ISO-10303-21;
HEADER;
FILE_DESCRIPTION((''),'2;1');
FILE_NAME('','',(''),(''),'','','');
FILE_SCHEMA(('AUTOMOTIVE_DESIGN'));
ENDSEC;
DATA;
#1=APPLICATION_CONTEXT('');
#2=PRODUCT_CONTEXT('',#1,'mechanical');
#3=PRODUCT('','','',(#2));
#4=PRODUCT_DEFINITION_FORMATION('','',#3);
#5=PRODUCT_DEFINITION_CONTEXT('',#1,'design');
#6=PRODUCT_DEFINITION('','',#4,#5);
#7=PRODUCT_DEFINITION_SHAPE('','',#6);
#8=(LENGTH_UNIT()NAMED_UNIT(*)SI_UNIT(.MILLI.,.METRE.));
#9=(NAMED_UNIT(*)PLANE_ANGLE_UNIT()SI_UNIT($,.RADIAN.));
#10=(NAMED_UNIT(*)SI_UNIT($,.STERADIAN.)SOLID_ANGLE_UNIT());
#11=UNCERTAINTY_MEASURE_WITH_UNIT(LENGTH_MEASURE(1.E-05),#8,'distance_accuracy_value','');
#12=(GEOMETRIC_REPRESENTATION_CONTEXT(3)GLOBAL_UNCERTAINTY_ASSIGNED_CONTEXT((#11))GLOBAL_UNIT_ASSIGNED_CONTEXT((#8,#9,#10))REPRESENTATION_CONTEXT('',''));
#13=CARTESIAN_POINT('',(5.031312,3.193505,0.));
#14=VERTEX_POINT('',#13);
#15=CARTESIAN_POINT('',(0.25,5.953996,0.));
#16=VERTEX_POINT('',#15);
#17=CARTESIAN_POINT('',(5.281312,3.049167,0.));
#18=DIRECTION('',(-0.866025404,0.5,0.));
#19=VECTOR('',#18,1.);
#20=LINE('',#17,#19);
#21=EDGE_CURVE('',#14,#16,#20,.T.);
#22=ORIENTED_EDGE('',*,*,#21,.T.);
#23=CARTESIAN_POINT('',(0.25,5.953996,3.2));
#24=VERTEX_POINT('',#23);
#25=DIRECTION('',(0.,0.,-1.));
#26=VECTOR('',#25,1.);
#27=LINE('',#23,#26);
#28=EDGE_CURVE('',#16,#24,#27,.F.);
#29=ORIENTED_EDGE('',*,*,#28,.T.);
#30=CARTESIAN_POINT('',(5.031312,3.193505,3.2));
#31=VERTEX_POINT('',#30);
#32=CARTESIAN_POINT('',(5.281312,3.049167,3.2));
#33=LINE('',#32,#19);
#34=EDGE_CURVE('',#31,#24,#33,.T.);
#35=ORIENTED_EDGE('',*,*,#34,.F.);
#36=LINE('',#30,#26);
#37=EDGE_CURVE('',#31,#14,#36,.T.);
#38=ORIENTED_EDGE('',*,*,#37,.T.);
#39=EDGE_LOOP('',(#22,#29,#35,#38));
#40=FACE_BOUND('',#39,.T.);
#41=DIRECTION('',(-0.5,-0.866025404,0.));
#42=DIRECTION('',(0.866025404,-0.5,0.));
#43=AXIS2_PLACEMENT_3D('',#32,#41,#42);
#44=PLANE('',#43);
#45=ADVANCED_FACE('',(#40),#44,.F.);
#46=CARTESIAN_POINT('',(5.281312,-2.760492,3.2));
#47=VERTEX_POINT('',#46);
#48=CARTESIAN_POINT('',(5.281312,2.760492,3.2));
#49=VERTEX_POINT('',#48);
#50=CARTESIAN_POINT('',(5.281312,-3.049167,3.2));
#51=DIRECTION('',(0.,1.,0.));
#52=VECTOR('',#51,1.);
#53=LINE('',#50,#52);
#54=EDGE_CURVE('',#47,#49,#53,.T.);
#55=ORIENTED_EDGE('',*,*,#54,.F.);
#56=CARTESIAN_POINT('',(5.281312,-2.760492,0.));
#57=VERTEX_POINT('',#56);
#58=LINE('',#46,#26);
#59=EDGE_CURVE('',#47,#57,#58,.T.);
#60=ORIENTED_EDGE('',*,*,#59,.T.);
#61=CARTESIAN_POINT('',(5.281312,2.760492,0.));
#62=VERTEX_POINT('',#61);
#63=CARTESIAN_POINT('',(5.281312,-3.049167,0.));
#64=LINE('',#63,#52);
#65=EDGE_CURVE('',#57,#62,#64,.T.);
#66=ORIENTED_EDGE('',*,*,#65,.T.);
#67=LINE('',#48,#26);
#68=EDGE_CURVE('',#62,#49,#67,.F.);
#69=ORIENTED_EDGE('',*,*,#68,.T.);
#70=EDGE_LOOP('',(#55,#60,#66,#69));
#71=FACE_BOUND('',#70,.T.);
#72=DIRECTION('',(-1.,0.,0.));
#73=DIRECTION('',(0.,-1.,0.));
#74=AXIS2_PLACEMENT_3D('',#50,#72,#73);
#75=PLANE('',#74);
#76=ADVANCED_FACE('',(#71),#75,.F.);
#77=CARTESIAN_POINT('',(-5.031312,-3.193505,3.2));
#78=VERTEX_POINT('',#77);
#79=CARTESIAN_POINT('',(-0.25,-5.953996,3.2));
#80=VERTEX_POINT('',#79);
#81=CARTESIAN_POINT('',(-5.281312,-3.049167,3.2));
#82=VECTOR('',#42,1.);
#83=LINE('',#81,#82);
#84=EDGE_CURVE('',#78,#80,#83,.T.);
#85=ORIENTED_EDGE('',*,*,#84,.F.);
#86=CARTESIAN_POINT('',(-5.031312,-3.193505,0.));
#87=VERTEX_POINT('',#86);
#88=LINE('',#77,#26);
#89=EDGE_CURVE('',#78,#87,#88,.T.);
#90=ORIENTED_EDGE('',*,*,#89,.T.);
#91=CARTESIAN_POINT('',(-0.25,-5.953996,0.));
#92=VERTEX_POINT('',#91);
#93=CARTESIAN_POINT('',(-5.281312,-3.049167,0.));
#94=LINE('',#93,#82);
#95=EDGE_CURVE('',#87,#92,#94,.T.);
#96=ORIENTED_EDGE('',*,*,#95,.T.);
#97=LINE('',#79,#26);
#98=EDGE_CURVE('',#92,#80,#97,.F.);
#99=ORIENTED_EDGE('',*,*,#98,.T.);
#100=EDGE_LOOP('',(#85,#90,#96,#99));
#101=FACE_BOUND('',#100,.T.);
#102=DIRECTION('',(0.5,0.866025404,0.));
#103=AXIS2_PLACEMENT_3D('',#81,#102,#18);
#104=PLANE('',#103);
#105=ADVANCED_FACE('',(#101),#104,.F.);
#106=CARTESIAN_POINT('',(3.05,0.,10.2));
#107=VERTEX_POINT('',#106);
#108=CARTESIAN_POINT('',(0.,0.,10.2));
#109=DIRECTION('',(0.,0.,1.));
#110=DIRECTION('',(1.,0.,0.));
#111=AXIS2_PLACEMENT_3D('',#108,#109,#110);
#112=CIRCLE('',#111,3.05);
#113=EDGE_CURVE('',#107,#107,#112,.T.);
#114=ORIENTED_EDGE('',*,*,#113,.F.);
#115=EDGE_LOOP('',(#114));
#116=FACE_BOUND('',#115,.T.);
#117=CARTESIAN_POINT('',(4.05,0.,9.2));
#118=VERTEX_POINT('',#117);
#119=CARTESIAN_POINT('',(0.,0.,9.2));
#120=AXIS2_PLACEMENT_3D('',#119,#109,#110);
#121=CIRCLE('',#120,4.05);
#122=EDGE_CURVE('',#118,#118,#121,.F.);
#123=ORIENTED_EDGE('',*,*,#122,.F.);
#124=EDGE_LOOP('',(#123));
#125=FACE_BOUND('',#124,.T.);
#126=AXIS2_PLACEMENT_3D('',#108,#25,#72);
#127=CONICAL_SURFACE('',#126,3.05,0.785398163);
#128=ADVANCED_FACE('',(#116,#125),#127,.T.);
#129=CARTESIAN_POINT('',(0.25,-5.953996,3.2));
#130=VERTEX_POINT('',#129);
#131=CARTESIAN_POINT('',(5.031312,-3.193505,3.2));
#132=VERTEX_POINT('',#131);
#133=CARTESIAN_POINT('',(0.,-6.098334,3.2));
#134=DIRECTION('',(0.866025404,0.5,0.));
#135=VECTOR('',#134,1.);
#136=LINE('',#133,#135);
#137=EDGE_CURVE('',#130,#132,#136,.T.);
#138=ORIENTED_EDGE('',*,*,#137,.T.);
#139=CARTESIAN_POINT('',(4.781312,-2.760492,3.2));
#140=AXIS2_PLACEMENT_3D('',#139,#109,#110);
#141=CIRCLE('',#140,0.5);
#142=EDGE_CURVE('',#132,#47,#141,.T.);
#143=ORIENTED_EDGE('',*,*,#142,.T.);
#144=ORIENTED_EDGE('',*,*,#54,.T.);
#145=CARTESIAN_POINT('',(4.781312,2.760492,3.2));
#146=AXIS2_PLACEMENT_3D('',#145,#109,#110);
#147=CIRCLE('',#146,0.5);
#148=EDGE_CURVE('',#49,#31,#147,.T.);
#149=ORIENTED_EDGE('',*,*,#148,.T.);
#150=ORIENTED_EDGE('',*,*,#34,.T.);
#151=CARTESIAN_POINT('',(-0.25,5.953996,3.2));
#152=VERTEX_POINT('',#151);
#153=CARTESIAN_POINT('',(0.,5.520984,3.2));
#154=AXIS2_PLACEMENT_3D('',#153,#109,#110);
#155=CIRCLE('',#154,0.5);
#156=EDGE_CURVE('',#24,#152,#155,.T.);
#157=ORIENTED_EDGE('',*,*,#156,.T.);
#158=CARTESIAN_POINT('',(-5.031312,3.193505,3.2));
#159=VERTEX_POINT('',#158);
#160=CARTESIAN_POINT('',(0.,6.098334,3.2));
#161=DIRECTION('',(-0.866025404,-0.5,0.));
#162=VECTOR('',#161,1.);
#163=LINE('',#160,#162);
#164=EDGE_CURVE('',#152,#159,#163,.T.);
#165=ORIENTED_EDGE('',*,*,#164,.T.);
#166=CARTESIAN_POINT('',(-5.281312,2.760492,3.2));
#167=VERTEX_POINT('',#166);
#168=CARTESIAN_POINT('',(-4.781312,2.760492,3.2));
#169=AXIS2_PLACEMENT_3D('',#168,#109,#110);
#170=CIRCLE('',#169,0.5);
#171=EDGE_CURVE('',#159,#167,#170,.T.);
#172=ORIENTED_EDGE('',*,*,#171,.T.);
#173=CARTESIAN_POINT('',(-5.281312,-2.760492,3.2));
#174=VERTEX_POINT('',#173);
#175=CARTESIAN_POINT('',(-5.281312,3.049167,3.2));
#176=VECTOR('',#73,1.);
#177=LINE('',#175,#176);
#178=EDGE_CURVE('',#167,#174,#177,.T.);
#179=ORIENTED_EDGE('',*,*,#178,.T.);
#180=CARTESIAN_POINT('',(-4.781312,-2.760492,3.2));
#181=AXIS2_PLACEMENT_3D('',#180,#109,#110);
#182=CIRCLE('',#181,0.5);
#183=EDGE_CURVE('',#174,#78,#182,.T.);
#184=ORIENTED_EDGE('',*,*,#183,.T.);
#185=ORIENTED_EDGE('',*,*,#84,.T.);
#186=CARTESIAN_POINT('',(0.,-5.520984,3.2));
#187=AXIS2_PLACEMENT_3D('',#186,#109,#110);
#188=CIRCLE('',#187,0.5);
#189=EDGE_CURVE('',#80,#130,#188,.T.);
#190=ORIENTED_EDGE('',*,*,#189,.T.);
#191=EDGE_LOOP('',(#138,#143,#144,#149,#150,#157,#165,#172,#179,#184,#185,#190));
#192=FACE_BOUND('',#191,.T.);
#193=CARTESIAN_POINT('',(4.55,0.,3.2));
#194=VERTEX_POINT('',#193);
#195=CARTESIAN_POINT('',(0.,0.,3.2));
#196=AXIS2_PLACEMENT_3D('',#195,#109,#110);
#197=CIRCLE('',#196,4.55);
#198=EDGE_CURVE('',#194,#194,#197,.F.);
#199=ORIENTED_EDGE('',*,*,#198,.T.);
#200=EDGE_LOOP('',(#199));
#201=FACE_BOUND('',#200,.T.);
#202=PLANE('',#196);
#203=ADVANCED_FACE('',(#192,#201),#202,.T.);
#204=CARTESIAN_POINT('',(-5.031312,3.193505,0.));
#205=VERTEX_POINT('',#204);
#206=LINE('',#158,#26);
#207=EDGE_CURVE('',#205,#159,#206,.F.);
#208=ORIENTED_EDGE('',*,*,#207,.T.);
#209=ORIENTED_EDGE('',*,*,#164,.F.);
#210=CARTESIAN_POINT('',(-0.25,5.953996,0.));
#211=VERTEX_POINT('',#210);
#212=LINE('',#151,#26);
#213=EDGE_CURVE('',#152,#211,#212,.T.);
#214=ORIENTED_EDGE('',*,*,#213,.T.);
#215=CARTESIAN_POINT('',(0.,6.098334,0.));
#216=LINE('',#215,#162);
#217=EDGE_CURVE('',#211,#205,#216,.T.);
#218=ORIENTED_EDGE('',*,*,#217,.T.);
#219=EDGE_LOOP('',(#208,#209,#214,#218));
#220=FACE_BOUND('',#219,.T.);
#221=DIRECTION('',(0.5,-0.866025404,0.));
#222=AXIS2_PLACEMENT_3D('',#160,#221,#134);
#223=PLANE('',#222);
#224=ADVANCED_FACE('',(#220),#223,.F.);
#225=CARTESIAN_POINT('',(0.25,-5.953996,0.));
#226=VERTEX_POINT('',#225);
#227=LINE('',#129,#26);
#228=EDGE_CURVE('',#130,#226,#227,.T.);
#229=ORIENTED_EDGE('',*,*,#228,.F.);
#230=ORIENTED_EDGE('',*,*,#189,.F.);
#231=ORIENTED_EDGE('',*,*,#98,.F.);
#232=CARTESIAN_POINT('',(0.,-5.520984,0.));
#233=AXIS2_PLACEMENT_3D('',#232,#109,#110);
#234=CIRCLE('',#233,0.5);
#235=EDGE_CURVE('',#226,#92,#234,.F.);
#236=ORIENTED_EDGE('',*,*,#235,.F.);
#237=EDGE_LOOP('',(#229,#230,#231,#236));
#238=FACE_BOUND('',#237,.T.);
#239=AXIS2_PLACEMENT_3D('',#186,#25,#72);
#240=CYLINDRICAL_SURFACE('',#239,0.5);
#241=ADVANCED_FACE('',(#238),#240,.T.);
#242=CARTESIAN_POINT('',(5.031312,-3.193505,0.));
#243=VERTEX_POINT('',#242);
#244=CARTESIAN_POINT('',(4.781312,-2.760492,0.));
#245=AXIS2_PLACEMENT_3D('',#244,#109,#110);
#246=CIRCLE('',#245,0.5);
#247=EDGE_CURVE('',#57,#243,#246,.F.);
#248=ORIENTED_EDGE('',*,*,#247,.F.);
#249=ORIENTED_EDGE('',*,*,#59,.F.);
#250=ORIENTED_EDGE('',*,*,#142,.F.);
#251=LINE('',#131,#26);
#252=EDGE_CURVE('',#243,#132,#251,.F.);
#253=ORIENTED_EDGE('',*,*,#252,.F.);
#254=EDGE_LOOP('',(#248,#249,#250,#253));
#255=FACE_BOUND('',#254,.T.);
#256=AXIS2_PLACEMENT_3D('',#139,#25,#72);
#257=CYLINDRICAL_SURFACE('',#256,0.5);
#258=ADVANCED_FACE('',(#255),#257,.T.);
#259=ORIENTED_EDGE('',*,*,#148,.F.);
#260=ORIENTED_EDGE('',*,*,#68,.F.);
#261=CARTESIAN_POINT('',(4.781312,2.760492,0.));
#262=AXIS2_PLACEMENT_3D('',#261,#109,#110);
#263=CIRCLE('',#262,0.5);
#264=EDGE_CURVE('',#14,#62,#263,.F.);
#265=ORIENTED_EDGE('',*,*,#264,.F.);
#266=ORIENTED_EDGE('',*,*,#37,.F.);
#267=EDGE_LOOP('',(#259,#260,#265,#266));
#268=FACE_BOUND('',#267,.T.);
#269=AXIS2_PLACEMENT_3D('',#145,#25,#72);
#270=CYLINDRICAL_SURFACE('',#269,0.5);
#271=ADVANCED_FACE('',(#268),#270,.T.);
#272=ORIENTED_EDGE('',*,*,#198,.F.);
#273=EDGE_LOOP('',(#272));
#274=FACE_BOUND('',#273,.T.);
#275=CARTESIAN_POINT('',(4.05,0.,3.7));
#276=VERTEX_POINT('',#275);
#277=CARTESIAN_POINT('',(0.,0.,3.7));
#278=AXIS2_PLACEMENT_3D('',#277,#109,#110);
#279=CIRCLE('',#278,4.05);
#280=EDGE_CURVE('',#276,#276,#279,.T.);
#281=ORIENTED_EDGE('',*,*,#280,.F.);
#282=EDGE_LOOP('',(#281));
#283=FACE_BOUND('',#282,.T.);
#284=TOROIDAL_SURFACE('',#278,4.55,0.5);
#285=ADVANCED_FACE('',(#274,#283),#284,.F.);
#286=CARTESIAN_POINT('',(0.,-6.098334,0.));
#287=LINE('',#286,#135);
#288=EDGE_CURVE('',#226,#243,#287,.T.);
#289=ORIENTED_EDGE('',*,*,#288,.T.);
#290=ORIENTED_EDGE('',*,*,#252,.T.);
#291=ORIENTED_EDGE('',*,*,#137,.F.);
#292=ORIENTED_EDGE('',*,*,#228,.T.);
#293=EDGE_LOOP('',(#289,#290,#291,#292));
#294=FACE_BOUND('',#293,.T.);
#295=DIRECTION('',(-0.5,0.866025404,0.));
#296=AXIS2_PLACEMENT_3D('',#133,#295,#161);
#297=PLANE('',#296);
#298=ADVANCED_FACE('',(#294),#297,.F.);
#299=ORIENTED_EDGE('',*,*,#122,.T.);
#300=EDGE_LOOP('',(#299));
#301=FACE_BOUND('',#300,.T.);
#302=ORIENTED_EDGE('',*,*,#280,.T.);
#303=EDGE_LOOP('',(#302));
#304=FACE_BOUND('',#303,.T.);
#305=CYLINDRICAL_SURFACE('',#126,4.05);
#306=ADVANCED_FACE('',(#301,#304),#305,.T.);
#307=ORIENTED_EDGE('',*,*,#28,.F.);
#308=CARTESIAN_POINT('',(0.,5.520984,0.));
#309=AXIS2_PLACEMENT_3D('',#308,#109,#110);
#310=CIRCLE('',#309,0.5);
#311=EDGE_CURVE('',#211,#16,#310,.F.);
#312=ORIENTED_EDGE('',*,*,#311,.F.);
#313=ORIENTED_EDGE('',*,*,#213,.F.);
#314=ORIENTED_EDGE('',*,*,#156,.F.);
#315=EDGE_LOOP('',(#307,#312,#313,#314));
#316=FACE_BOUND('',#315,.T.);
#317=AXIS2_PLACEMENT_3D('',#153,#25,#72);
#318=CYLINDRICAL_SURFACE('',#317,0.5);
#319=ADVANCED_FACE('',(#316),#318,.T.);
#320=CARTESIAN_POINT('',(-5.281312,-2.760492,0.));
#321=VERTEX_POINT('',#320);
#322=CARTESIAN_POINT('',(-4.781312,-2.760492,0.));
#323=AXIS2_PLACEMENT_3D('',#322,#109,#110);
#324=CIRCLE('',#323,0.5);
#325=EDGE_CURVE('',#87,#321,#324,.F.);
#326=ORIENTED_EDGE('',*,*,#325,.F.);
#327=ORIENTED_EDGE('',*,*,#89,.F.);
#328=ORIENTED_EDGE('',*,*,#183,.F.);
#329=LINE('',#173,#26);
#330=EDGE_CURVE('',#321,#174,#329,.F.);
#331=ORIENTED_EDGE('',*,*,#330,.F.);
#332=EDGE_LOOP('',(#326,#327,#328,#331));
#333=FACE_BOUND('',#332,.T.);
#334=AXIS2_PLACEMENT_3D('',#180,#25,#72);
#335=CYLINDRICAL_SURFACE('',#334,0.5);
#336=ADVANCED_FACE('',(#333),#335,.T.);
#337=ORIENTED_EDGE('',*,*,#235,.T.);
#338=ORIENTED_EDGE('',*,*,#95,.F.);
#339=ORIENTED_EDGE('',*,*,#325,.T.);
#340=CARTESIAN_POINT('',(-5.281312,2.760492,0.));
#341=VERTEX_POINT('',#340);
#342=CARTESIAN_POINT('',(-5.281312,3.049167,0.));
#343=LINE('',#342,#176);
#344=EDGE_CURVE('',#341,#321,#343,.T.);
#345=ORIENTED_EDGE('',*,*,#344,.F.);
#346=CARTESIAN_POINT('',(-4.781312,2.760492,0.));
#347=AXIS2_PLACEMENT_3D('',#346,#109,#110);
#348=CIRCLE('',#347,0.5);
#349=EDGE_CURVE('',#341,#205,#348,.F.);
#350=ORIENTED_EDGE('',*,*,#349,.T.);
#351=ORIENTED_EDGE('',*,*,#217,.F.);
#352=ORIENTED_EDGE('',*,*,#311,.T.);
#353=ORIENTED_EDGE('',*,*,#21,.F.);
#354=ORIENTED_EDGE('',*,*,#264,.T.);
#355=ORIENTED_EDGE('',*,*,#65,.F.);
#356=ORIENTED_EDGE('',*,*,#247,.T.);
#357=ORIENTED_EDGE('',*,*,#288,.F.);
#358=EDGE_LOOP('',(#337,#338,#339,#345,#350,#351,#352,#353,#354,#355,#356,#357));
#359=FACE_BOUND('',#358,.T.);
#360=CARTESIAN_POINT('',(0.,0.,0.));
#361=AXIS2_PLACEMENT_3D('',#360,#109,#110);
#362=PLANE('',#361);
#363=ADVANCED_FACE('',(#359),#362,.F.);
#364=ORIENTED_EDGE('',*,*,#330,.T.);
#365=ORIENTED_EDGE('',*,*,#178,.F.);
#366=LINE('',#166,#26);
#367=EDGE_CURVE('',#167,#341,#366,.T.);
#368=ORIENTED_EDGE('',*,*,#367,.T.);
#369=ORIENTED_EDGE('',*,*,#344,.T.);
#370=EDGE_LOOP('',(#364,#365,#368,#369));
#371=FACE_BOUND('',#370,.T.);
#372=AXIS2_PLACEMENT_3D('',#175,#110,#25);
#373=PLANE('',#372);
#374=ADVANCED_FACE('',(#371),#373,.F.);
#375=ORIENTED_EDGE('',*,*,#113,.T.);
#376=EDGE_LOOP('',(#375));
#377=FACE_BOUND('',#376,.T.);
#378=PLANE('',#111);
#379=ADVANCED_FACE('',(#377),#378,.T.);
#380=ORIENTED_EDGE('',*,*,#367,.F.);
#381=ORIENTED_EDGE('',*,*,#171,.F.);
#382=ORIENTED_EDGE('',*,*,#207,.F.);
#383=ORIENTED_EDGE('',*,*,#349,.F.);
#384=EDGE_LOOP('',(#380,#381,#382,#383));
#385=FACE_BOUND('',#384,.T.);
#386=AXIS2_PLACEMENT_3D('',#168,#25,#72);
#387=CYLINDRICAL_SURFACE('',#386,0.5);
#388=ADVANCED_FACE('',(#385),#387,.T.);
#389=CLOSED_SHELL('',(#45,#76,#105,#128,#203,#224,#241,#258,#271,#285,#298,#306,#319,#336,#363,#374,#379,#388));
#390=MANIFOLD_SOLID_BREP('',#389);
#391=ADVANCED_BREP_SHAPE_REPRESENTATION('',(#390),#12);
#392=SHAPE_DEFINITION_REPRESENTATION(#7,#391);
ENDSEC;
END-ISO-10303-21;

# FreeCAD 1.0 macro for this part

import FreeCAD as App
import Part
import Sketcher
Q = App.Units.Quantity


def edges_at(feature, points):
    """Names of the edges that pass closest to the given points."""
    edges = feature.Shape.Edges
    near = lambda p: min(range(len(edges)), key=lambda i: edges[i].distToShape(Part.Vertex(*p))[0])
    return sorted({f"Edge{near(p) + 1}" for p in points})


def add_polygon(sketch, points):
    """Adds a closed chain of lines whose ends are joined by coincident constraints."""
    first, n = sketch.GeometryCount, len(points)
    for a, b in zip(points, points[1:] + points[:1]):
        sketch.addGeometry(Part.LineSegment(App.Vector(*a, 0), App.Vector(*b, 0)), False)
    for i in range(n):
        sketch.addConstraint(Sketcher.Constraint("Coincident", first + i, 2, first + (i + 1) % n, 1))

doc = App.newDocument("Part")
body = doc.addObject("PartDesign::Body", "Body")

sketch1 = body.newObject("Sketcher::SketchObject", "Sketch")
sketch1.AttachmentSupport = (doc.getObject("XY_Plane"), [""])
sketch1.MapMode = "FlatFace"
add_polygon(sketch1, [(5.281312, 3.049167), (0, 6.098334), (-5.281312, 3.049167), (-5.281312, -3.049167), (0, -6.098334), (5.281312, -3.049167)])
sketch1.addConstraint([
    Sketcher.Constraint("Vertical", 2),
    Sketcher.Constraint("Vertical", 5),
    Sketcher.Constraint("Symmetric", 0, 2, 3, 2, -1, 1),
    Sketcher.Constraint("Symmetric", 1, 2, 4, 2, -1, 1),
    Sketcher.Constraint("PointOnObject", 0, 2, -2),
    Sketcher.Constraint("Parallel", 0, 3),
    Sketcher.Constraint("Horizontal", 2, 2, 4, 2),
    Sketcher.Constraint("Angle", 0, Q("150 deg")),
    Sketcher.Constraint("DistanceY", 2, 2, 0, 2, Q("9.147501 mm")),
    Sketcher.Constraint("DistanceY", 2, 2, 2, 1, Q("6.098334 mm")),
])
pad1 = body.newObject("PartDesign::Pad", "Pad")
pad1.Profile = sketch1
pad1.Length = 3.2

sketch2 = body.newObject("Sketcher::SketchObject", "Sketch001")
sketch2.AttachmentSupport = (doc.getObject("XY_Plane"), [""])
sketch2.MapMode = "FlatFace"
sketch2.AttachmentOffset = App.Placement(App.Vector(0, 0, 3.2), App.Rotation())
sketch2.addGeometry(Part.Circle(App.Vector(0, 0, 0), App.Vector(0, 0, 1), 4.05), False)
sketch2.addConstraint([
    Sketcher.Constraint("Coincident", 0, 3, -1, 1),
    Sketcher.Constraint("Diameter", 0, Q("8.1 mm")),
])
pad2 = body.newObject("PartDesign::Pad", "Pad001")
pad2.Profile = sketch2
pad2.Length = 7
doc.recompute()

fillet = body.newObject("PartDesign::Fillet", "Fillet")
fillet.Base = (pad2, edges_at(pad2, [
    (5.281, -3.049, 1.6),
    (0, -6.098, 1.6),
    (-5.281, -3.049, 1.6),
    (-5.281, 3.049, 1.6),
    (0, 6.098, 1.6),
    (5.281, 3.049, 1.6),
    (-4.05, 0, 3.2),
]))
fillet.Radius = 0.5
doc.recompute()

chamfer = body.newObject("PartDesign::Chamfer", "Chamfer")
chamfer.Base = (fillet, edges_at(fillet, [(-4.05, 0, 10.2)]))
chamfer.Size = 1

doc.recompute()
